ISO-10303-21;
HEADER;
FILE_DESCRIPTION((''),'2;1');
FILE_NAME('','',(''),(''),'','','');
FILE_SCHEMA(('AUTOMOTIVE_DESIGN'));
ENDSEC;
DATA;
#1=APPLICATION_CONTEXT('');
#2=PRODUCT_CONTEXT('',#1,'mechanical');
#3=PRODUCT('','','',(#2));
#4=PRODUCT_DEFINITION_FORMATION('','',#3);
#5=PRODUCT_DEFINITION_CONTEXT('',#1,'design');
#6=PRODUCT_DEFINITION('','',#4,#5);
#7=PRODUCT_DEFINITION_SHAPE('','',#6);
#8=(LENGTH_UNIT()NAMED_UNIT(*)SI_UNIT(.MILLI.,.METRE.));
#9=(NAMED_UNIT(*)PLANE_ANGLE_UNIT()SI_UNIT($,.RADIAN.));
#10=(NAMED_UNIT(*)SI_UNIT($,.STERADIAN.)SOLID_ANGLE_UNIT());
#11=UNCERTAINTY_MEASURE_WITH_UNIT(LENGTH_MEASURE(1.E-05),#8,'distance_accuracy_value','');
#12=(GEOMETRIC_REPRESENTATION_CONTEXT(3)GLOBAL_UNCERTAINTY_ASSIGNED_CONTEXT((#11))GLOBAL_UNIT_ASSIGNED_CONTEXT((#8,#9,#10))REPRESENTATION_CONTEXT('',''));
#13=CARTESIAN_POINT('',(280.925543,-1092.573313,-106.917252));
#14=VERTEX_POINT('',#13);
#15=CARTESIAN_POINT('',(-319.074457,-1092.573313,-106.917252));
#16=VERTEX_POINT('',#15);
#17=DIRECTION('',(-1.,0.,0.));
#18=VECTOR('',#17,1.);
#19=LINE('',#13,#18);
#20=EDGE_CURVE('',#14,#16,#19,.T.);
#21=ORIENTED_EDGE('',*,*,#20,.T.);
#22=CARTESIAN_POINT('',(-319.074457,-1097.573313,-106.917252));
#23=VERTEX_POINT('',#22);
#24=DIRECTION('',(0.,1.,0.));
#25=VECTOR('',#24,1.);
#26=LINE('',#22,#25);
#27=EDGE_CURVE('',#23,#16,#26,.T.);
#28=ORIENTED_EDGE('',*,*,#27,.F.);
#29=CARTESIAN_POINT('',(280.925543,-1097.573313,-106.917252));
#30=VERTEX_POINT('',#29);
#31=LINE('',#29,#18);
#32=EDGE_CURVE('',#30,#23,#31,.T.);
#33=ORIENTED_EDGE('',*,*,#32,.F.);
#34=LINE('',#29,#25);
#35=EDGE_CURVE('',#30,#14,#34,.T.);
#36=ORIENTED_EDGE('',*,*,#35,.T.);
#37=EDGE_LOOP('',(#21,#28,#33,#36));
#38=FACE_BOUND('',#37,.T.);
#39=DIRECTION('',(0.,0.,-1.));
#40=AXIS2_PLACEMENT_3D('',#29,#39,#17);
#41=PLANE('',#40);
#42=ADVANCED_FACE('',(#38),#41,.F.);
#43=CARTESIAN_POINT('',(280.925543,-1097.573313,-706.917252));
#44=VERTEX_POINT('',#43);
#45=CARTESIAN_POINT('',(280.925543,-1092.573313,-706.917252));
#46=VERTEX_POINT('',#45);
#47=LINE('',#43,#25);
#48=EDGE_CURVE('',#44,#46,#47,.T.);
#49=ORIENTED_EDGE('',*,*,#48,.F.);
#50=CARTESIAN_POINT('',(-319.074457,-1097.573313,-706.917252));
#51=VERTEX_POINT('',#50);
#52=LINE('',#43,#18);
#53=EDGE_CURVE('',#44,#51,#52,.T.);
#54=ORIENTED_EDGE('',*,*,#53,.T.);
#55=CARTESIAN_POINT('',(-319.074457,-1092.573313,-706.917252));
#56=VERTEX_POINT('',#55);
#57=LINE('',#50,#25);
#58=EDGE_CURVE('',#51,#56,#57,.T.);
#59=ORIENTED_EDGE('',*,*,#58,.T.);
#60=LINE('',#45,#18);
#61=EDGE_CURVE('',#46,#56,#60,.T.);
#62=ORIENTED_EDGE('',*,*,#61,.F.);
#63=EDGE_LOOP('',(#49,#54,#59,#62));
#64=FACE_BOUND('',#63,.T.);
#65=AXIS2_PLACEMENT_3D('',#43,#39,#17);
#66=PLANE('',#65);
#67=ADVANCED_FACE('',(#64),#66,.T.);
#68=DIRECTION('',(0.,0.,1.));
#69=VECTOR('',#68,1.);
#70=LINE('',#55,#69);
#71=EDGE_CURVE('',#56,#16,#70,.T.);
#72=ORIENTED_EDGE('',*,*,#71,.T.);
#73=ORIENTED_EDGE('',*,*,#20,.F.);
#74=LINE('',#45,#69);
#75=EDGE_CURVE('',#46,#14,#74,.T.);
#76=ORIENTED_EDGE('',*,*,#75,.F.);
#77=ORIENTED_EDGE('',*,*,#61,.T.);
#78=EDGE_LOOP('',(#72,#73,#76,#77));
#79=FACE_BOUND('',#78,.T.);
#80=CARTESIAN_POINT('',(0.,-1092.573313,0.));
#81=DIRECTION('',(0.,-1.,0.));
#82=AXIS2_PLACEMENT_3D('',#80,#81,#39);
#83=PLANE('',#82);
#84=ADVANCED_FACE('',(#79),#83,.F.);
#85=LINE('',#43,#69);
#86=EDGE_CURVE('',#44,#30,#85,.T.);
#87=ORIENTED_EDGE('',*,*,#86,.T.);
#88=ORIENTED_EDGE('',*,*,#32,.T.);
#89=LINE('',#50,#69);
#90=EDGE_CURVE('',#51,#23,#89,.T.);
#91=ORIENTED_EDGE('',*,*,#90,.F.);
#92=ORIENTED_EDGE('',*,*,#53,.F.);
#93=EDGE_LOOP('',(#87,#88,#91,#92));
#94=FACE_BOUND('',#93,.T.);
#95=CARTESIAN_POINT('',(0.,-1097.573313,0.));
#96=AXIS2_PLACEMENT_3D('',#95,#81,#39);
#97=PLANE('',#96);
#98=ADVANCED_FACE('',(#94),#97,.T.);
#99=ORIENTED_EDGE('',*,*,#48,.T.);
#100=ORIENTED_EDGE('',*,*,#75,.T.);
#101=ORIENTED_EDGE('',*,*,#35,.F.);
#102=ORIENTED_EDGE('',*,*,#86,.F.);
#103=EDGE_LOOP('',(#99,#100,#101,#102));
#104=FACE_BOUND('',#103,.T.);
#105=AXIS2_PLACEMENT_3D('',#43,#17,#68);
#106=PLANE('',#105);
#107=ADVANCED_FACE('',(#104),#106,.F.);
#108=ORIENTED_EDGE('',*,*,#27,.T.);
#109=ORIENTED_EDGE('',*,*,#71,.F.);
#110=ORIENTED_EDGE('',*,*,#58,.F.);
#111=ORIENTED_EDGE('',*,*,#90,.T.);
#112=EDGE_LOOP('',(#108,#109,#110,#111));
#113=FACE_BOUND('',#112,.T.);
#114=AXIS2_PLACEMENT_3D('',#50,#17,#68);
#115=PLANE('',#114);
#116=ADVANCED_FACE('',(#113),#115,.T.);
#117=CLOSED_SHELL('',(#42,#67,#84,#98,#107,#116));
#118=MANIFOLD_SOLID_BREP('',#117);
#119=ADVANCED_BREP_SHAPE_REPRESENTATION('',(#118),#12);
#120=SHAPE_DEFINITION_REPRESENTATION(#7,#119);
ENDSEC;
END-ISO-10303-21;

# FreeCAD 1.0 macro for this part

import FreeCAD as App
import Part
import Sketcher
from FreeCAD import Vector
Q = App.Units.Quantity

doc = App.newDocument("Part")
body = doc.addObject("PartDesign::Body", "Body")

# Sketch on XZ plane
sketch1 = body.newObject("Sketcher::SketchObject", "Sketch")
sketch1.AttachmentSupport = (doc.getObject("XZ_Plane"), [""])
sketch1.MapMode = "FlatFace"
sketch1.AttachmentOffset = App.Placement(Vector(0, 0, 1092.573313), App.Rotation())
sketch1.addGeometry(Part.LineSegment(Vector(-319, -107, 0), Vector(-319, -707, 0)), False)
sketch1.addGeometry(Part.LineSegment(Vector(-319, -707, 0), Vector(281, -707, 0)), False)
sketch1.addGeometry(Part.LineSegment(Vector(281, -707, 0), Vector(281, -107, 0)), False)
sketch1.addGeometry(Part.LineSegment(Vector(281, -107, 0), Vector(-319, -107, 0)), False)
sketch1.addConstraint(Sketcher.Constraint("Coincident", 0, 2, 1, 1))
sketch1.addConstraint(Sketcher.Constraint("Coincident", 1, 2, 2, 1))
sketch1.addConstraint(Sketcher.Constraint("Coincident", 2, 2, 3, 1))
sketch1.addConstraint(Sketcher.Constraint("Coincident", 3, 2, 0, 1))
sketch1.addConstraint(Sketcher.Constraint("Vertical", 0))
sketch1.addConstraint(Sketcher.Constraint("Horizontal", 1))
sketch1.addConstraint(Sketcher.Constraint("Vertical", 2))
sketch1.addConstraint(Sketcher.Constraint("Horizontal", 3))
sketch1.addConstraint(Sketcher.Constraint("Equal", 3, 0))
sketch1.addConstraint(Sketcher.Constraint("DistanceX", 1, 1, 1, 2, Q("600 mm")))
sketch1.addConstraint(Sketcher.Constraint("DistanceX", 0, 2, -1, 1, Q("319.074457 mm")))
sketch1.addConstraint(Sketcher.Constraint("DistanceY", 0, 2, -1, 1, Q("706.917252 mm")))
pad1 = body.newObject("PartDesign::Pad", "Pad")
pad1.Profile = sketch1
pad1.Length = 5

doc.recompute()
